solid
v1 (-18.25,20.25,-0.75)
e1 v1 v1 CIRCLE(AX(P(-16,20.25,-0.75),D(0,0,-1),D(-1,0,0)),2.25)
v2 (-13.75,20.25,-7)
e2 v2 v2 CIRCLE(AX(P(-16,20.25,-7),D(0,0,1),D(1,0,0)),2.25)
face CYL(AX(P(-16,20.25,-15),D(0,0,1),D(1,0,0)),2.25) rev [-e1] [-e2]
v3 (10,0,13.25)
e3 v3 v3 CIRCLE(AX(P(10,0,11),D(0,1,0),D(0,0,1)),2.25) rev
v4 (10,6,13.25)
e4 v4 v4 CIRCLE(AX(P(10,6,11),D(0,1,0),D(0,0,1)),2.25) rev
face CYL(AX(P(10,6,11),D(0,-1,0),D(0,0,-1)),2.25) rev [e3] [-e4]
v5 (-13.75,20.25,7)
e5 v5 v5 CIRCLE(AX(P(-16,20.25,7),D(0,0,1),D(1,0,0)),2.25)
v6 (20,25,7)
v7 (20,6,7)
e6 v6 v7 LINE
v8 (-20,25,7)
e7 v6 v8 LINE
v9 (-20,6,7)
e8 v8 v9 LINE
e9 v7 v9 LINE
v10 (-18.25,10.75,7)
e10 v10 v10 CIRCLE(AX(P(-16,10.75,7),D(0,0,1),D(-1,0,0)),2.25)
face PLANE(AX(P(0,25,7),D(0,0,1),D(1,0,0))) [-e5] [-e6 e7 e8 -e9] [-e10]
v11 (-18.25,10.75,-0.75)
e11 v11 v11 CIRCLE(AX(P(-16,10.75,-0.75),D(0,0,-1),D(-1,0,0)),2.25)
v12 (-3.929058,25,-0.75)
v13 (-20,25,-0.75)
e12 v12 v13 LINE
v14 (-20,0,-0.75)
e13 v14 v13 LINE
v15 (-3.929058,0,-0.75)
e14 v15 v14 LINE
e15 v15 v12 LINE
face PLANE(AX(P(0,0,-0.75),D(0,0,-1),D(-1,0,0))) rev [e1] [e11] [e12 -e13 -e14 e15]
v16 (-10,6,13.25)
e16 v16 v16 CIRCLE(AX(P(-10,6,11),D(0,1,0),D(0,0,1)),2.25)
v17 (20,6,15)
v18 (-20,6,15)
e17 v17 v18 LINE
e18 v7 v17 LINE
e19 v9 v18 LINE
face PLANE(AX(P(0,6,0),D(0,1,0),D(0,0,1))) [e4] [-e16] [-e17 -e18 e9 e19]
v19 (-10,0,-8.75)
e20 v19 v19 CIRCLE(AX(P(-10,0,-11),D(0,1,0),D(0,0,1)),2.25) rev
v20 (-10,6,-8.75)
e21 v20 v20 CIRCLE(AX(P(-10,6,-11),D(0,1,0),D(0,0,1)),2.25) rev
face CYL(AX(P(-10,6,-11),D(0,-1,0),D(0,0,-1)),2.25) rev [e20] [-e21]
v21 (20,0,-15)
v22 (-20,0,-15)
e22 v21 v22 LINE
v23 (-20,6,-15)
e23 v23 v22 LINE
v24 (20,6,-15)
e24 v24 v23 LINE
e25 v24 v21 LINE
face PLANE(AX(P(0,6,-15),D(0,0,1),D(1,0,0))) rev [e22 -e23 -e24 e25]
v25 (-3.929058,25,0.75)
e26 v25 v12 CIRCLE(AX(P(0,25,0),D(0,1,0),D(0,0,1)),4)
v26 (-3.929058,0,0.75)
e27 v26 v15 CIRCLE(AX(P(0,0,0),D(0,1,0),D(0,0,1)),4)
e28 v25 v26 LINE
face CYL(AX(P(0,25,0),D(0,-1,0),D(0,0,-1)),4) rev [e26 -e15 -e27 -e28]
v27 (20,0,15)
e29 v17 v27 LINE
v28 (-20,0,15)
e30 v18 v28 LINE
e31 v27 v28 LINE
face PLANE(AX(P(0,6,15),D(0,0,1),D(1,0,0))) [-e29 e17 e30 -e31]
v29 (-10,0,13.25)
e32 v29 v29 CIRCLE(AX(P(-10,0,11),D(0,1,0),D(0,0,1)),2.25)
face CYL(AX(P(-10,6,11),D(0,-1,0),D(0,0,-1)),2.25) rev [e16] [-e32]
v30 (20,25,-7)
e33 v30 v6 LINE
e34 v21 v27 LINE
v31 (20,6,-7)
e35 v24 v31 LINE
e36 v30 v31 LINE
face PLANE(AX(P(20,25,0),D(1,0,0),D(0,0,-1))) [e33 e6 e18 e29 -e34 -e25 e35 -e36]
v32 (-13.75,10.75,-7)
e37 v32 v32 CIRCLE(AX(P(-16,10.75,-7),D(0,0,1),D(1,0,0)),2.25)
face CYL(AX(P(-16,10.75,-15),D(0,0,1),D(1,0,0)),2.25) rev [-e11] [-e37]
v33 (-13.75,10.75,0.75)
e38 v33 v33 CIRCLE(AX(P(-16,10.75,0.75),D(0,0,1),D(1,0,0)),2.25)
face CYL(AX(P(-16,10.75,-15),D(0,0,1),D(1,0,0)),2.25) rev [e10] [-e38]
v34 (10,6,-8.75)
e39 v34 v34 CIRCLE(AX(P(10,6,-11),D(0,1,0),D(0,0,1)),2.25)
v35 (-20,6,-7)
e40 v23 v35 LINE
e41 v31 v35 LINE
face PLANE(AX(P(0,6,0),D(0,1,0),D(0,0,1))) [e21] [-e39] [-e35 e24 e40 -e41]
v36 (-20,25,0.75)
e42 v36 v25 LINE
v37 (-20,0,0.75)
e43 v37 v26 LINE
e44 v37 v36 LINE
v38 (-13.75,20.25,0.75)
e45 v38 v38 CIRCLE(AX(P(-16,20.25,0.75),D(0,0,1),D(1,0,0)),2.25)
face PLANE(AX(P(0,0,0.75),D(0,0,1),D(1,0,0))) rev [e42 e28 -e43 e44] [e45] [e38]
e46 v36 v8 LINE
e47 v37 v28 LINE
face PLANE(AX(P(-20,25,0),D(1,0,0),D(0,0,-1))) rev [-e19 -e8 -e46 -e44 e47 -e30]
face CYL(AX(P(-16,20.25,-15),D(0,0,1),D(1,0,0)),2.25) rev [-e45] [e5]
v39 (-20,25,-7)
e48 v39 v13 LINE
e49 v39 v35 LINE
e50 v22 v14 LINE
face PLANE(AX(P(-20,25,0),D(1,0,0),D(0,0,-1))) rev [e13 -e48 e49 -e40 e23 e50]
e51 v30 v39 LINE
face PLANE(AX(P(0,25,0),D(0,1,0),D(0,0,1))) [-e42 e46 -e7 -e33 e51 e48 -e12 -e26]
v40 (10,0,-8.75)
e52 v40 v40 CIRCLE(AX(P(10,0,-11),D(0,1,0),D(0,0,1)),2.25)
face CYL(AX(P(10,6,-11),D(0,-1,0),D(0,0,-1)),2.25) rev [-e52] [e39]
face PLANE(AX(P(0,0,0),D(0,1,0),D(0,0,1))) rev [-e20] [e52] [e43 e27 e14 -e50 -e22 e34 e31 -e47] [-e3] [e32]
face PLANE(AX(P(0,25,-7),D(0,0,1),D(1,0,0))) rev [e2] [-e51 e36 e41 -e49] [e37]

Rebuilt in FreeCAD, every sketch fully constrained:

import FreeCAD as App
import Part
import Sketcher

doc = App.newDocument("Part")
body = doc.addObject("PartDesign::Body", "Body")

# Sketch on XZ plane
sketch1 = doc.addObject("Sketcher::SketchObject", "Sketch")
body.addObject(sketch1)
sketch1.AttachmentSupport = (doc.XZ_Plane, [""])
sketch1.MapMode = "FlatFace"
sketch1.addGeometry([
    Part.LineSegment(App.Vector(-20, -7, 0), App.Vector(-20, 7, 0)),  # 0
    Part.LineSegment(App.Vector(-20, 7, 0), App.Vector(20, 7, 0)),  # 1
    Part.LineSegment(App.Vector(20, 7, 0), App.Vector(20, -7, 0)),  # 2
    Part.LineSegment(App.Vector(20, -7, 0), App.Vector(-20, -7, 0)),  # 3
    Part.Circle(App.Vector(0, 0, 0), App.Vector(0, 0, 1), 4),  # 4
], False)
sketch1.addConstraint([
    Sketcher.Constraint("Coincident", 0, 2, 1, 1),
    Sketcher.Constraint("Coincident", 1, 2, 2, 1),
    Sketcher.Constraint("Coincident", 2, 2, 3, 1),
    Sketcher.Constraint("Coincident", 3, 2, 0, 1),
    Sketcher.Constraint("Vertical", 0),
    Sketcher.Constraint("Horizontal", 1),
    Sketcher.Constraint("Vertical", 2),
    Sketcher.Constraint("Horizontal", 3),
    Sketcher.Constraint("Coincident", 4, 3, -1, 1),
    Sketcher.Constraint("Symmetric", 0, 2, 2, 2, -1, 1),
    Sketcher.Constraint("Diameter", 4, 8.0),
    Sketcher.Constraint("DistanceX", 1, 1, 1, 2, 40.0),
    Sketcher.Constraint("DistanceY", 0, 1, 0, 2, 14.0),
])
pad1 = doc.addObject("PartDesign::Pad", "Pad")
body.addObject(pad1)
pad1.Profile = sketch1
pad1.Length = 25
pad1.Reversed = True

# Sketch on XZ plane
sketch2 = doc.addObject("Sketcher::SketchObject", "Sketch001")
body.addObject(sketch2)
sketch2.AttachmentSupport = (doc.XZ_Plane, [""])
sketch2.MapMode = "FlatFace"
sketch2.addGeometry([
    Part.LineSegment(App.Vector(-20, 7, 0), App.Vector(-20, 15, 0)),  # 0
    Part.LineSegment(App.Vector(-20, 15, 0), App.Vector(20, 15, 0)),  # 1
    Part.LineSegment(App.Vector(20, 15, 0), App.Vector(20, 7, 0)),  # 2
    Part.LineSegment(App.Vector(20, 7, 0), App.Vector(-20, 7, 0)),  # 3
    Part.Circle(App.Vector(-10, 11, 0), App.Vector(0, 0, 1), 2.2),  # 4
    Part.Circle(App.Vector(10, 11, 0), App.Vector(0, 0, 1), 2.2),  # 5
    Part.LineSegment(App.Vector(-20, -15, 0), App.Vector(-20, -7, 0)),  # 6
    Part.LineSegment(App.Vector(-20, -7, 0), App.Vector(20, -7, 0)),  # 7
    Part.LineSegment(App.Vector(20, -7, 0), App.Vector(20, -15, 0)),  # 8
    Part.LineSegment(App.Vector(20, -15, 0), App.Vector(-20, -15, 0)),  # 9
    Part.Circle(App.Vector(-10, -11, 0), App.Vector(0, 0, 1), 2.2),  # 10
    Part.Circle(App.Vector(10, -11, 0), App.Vector(0, 0, 1), 2.2),  # 11
], False)
sketch2.addConstraint([
    Sketcher.Constraint("Coincident", 0, 2, 1, 1),
    Sketcher.Constraint("Coincident", 1, 2, 2, 1),
    Sketcher.Constraint("Coincident", 2, 2, 3, 1),
    Sketcher.Constraint("Coincident", 3, 2, 0, 1),
    Sketcher.Constraint("Coincident", 6, 2, 7, 1),
    Sketcher.Constraint("Coincident", 7, 2, 8, 1),
    Sketcher.Constraint("Coincident", 8, 2, 9, 1),
    Sketcher.Constraint("Coincident", 9, 2, 6, 1),
    Sketcher.Constraint("Vertical", 0),
    Sketcher.Constraint("Horizontal", 1),
    Sketcher.Constraint("Vertical", 2),
    Sketcher.Constraint("Horizontal", 3),
    Sketcher.Constraint("Vertical", 6),
    Sketcher.Constraint("Horizontal", 7),
    Sketcher.Constraint("Vertical", 8),
    Sketcher.Constraint("Horizontal", 9),
    Sketcher.Constraint("Equal", 4, 5),
    Sketcher.Constraint("Equal", 5, 10),
    Sketcher.Constraint("Equal", 10, 11),
    Sketcher.Constraint("Symmetric", 5, 3, 10, 3, -1, 1),
    Sketcher.Constraint("Symmetric", 4, 3, 11, 3, -1, 1),
    Sketcher.Constraint("Symmetric", 2, 2, 6, 2, -1, 1),
    Sketcher.Constraint("Symmetric", 0, 2, 8, 2, -1, 1),
    Sketcher.Constraint("Symmetric", 4, 3, 5, 3, -2),
    Sketcher.Constraint("Vertical", 3, 2, 6, 2),
    Sketcher.Constraint("Diameter", 4, 4.5),
    Sketcher.Constraint("DistanceX", 1, 1, 1, 2, 40.0),
    Sketcher.Constraint("DistanceY", 0, 1, 0, 2, 8.0),
    Sketcher.Constraint("DistanceX", 4, 3, -1, 1, 10.0),
    Sketcher.Constraint("DistanceY", -1, 1, 4, 3, 11.0),
    Sketcher.Constraint("DistanceY", -1, 1, 0, 2, 15.0),
])
pad2 = doc.addObject("PartDesign::Pad", "Pad001")
body.addObject(pad2)
pad2.Profile = sketch2
pad2.Length = 6
pad2.Reversed = True

# Sketch on XZ plane
sketch3 = doc.addObject("Sketcher::SketchObject", "Sketch002")
body.addObject(sketch3)
sketch3.AttachmentSupport = (doc.XZ_Plane, [""])
sketch3.MapMode = "FlatFace"
sketch3.AttachmentOffset = App.Placement(App.Vector(0, 0, -25), App.Rotation())
sketch3.addGeometry([
    Part.LineSegment(App.Vector(-20, -0.8, 0), App.Vector(-20, 0.8, 0)),
    Part.LineSegment(App.Vector(-20, 0.8, 0), App.Vector(0, 0.8, 0)),
    Part.LineSegment(App.Vector(0, 0.8, 0), App.Vector(0, -0.8, 0)),
    Part.LineSegment(App.Vector(0, -0.8, 0), App.Vector(-20, -0.8, 0)),
], False)
sketch3.addConstraint([
    Sketcher.Constraint("Coincident", 0, 2, 1, 1),
    Sketcher.Constraint("Coincident", 1, 2, 2, 1),
    Sketcher.Constraint("Coincident", 2, 2, 3, 1),
    Sketcher.Constraint("Coincident", 3, 2, 0, 1),
    Sketcher.Constraint("Vertical", 0),
    Sketcher.Constraint("Horizontal", 1),
    Sketcher.Constraint("Vertical", 2),
    Sketcher.Constraint("Horizontal", 3),
    Sketcher.Constraint("Symmetric", 1, 2, 2, 2, -1, 1),
    Sketcher.Constraint("DistanceX", 1, 1, 1, 2, 20.0),
    Sketcher.Constraint("DistanceY", 0, 1, 0, 2, 1.5),
])
pocket1 = doc.addObject("PartDesign::Pocket", "Pocket")
body.addObject(pocket1)
pocket1.Profile = sketch3
pocket1.Type = "ThroughAll"
pocket1.Reversed = True

# Sketch on XY plane
sketch4 = doc.addObject("Sketcher::SketchObject", "Sketch003")
body.addObject(sketch4)
sketch4.AttachmentSupport = (doc.XY_Plane, [""])
sketch4.MapMode = "FlatFace"
sketch4.AttachmentOffset = App.Placement(App.Vector(0, 0, 7), App.Rotation())
sketch4.addGeometry([
    Part.Circle(App.Vector(-16, 20.2, 0), App.Vector(0, 0, 1), 2.2),
    Part.Circle(App.Vector(-16, 10.8, 0), App.Vector(0, 0, 1), 2.2),
], False)
sketch4.addConstraint([
    Sketcher.Constraint("Equal", 0, 1),
    Sketcher.Constraint("Vertical", 0, 3, 1, 3),
    Sketcher.Constraint("Diameter", 0, 4.5),
    Sketcher.Constraint("DistanceX", 0, 3, -1, 1, 16.0),
    Sketcher.Constraint("DistanceY", 1, 3, 0, 3, 9.5),
    Sketcher.Constraint("DistanceY", -1, 1, 0, 3, 20.25),
])
pocket2 = doc.addObject("PartDesign::Pocket", "Pocket001")
body.addObject(pocket2)
pocket2.Profile = sketch4
pocket2.Type = "ThroughAll"

doc.recompute()
